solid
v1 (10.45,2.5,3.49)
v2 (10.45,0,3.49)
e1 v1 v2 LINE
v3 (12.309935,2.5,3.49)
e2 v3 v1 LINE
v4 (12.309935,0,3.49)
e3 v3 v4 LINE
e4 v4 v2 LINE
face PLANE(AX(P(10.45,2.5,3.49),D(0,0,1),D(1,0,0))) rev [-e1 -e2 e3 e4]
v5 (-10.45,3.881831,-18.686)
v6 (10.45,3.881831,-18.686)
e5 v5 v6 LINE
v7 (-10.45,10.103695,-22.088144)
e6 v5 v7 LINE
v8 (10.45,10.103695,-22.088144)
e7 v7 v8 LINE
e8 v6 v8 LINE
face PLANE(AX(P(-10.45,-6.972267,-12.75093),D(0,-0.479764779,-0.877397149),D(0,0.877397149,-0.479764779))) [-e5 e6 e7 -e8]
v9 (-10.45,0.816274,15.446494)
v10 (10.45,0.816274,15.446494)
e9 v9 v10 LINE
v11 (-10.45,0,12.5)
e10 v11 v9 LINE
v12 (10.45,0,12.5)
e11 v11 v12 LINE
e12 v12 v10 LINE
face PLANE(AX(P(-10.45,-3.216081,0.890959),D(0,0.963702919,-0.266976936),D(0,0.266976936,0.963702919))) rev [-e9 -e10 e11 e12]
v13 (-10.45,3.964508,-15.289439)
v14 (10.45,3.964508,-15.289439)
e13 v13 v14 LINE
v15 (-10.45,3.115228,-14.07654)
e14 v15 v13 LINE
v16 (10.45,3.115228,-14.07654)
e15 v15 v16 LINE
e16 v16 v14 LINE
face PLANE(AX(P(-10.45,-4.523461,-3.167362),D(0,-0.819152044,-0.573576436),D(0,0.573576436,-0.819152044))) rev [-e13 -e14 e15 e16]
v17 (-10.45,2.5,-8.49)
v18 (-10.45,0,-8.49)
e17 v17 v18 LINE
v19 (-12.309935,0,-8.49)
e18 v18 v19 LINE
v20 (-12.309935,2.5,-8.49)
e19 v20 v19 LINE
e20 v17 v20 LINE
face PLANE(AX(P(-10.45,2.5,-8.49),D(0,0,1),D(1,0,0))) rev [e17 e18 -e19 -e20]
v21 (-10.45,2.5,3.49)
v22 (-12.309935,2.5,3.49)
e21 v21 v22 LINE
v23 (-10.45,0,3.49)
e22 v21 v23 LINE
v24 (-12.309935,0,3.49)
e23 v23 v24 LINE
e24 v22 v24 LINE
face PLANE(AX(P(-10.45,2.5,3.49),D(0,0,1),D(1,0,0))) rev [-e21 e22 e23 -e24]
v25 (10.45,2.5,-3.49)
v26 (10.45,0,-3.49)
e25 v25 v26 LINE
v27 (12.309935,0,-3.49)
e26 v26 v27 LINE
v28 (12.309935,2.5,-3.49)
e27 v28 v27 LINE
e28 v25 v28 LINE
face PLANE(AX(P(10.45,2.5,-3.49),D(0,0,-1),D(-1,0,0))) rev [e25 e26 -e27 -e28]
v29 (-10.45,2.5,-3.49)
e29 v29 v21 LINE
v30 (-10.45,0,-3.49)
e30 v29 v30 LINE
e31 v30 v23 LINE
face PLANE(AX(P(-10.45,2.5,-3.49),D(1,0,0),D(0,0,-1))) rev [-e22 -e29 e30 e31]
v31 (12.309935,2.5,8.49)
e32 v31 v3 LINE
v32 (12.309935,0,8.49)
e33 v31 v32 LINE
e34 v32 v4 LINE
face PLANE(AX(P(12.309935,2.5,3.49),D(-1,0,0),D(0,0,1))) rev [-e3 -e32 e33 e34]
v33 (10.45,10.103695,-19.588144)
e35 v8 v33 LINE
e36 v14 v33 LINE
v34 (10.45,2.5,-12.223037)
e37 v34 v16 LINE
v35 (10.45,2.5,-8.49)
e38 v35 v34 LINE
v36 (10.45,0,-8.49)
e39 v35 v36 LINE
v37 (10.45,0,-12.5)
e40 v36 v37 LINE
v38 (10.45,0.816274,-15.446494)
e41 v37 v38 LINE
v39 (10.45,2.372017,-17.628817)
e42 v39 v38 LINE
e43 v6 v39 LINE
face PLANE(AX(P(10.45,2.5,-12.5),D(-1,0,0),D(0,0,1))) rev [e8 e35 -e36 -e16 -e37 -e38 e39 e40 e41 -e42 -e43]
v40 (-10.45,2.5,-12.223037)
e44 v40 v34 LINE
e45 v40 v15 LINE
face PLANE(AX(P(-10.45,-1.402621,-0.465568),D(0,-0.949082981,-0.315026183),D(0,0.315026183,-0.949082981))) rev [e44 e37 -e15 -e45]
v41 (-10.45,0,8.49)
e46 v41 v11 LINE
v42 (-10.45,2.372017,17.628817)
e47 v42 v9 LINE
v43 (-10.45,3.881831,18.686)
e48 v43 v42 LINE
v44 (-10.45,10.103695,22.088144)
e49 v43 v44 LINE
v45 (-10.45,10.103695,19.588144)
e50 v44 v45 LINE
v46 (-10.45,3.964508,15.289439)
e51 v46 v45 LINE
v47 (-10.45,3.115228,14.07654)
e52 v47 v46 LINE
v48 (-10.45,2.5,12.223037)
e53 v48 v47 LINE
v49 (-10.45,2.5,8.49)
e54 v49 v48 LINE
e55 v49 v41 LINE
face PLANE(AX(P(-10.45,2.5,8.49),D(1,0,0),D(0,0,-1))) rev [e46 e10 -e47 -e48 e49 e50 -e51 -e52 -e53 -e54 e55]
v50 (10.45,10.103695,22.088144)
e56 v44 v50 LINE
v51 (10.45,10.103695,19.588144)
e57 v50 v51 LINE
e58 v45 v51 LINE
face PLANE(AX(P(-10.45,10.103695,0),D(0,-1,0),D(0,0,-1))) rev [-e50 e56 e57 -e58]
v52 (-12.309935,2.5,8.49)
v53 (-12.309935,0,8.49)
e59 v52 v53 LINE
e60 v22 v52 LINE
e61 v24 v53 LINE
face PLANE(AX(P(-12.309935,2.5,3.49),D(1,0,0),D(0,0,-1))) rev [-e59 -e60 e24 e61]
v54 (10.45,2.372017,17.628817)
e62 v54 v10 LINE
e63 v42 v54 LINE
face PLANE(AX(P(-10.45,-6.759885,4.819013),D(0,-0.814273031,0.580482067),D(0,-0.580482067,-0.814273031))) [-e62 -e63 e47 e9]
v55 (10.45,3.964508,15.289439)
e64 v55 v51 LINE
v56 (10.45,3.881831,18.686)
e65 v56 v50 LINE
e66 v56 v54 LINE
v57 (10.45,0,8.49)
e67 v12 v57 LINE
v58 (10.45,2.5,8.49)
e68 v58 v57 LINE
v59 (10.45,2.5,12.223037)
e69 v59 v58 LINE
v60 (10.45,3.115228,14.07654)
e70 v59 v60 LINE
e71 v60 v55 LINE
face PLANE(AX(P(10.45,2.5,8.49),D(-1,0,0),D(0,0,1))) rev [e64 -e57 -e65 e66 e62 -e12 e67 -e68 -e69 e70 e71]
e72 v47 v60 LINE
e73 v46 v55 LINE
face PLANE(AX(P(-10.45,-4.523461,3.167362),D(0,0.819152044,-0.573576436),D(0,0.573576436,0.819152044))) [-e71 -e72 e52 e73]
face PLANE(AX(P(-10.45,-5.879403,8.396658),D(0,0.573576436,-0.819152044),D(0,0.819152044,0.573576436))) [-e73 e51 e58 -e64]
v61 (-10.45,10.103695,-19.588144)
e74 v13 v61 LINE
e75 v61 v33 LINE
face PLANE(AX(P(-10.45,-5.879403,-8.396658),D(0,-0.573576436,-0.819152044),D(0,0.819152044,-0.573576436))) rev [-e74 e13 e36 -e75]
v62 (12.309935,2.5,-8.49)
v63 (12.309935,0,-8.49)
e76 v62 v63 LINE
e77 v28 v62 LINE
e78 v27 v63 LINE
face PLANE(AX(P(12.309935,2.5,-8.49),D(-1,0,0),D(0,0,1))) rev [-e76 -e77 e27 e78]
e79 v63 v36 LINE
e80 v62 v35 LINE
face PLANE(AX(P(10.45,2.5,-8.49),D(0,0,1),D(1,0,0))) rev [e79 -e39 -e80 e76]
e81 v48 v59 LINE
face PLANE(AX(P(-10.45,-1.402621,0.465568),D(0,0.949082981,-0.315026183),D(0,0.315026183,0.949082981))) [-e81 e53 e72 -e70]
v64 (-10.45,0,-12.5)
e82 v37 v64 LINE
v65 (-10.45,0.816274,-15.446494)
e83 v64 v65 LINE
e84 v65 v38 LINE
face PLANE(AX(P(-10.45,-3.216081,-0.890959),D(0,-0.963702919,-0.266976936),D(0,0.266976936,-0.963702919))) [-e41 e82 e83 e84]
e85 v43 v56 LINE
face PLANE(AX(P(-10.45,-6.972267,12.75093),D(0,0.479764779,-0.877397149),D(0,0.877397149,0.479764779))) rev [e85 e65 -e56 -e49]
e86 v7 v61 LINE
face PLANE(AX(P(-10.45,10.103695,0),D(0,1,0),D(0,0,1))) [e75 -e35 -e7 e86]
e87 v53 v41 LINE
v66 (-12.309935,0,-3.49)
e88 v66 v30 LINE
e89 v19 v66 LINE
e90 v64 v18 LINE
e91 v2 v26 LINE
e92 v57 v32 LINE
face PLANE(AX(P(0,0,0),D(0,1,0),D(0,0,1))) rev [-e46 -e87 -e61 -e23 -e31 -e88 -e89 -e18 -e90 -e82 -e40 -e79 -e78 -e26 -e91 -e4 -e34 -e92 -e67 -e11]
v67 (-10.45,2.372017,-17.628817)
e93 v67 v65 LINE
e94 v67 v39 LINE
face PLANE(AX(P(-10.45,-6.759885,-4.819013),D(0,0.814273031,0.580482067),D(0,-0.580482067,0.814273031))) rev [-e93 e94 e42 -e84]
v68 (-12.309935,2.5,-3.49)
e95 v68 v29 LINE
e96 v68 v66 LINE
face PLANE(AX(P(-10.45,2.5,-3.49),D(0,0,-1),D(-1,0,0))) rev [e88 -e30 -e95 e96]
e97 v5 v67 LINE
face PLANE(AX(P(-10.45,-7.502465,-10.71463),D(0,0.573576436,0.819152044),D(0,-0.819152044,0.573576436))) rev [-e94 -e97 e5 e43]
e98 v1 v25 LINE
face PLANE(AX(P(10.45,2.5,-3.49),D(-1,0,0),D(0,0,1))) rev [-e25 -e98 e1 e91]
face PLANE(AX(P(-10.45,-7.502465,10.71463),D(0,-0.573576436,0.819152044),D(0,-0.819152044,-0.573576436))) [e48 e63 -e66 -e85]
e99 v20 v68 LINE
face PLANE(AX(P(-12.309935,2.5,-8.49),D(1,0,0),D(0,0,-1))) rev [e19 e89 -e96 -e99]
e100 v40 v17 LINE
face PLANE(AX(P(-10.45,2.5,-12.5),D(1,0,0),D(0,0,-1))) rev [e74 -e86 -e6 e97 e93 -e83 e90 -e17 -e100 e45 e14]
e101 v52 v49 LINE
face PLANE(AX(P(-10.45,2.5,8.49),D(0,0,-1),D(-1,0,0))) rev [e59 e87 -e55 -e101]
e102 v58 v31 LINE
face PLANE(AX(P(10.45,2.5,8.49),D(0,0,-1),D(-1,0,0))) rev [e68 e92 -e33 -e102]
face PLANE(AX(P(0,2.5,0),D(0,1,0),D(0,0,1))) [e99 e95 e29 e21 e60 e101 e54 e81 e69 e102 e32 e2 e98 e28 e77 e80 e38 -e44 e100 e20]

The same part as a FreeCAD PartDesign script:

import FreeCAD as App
import Part
import Sketcher

V = App.Vector
Q = App.Units.Quantity


def add_polygon(sketch, points):
    """Adds a closed chain of lines whose ends are joined by coincident constraints."""
    first, n = sketch.GeometryCount, len(points)
    for a, b in zip(points, points[1:] + points[:1]):
        sketch.addGeometry(Part.LineSegment(App.Vector(*a, 0), App.Vector(*b, 0)), False)
    for i in range(n):
        sketch.addConstraint(Sketcher.Constraint("Coincident", first + i, 2, first + (i + 1) % n, 1))

doc = App.newDocument("Part")
params = doc.addObject("Spreadsheet::Sheet", "Params")
for row, (alias, value) in enumerate([
    ("sketch1_height", "5 mm"),
    ("sketch1_width", "20.9 mm"),
    ("sketch1_height2", "4.01 mm"),
    ("sketch1_height3", "6.98 mm"),
    ("pad1_length", "2.5 mm"),
    ("sketch2_height", "25 mm"),
    ("sketch2_height2", "2.5 mm"),
    ("pad2_length", "10.45 mm"),
    ("pad2_length2", "10.45 mm"),
], start=1):
    params.set(f"A{row}", alias)
    params.set(f"B{row}", "=" + value)
    params.setAlias(f"B{row}", alias)

body = doc.addObject("PartDesign::Body", "Body")

sketch1 = doc.addObject("Sketcher::SketchObject", "Sketch")
body.addObject(sketch1)
sketch1.AttachmentSupport = (doc.XZ_Plane, [""])
sketch1.MapMode = "FlatFace"
add_polygon(sketch1, [(10.4, -12.5), (-10.4, -12.5), (-10.4, -8.5), (-12.3, -8.5), (-12.3, -3.5), (-10.4, -3.5), (-10.4, 3.5), (-12.3, 3.5), (-12.3, 8.5), (-10.4, 8.5), (-10.4, 12.5), (10.4, 12.5), (10.4, 8.5), (12.3, 8.5), (12.3, 3.5), (10.4, 3.5), (10.4, -3.5), (12.3, -3.5), (12.3, -8.5), (10.4, -8.5)])
sketch1.addConstraint([
    Sketcher.Constraint("Horizontal", 0),
    Sketcher.Constraint("Vertical", 1),
    Sketcher.Constraint("Horizontal", 2),
    Sketcher.Constraint("Vertical", 3),
    Sketcher.Constraint("Horizontal", 4),
    Sketcher.Constraint("Vertical", 5),
    Sketcher.Constraint("Horizontal", 6),
    Sketcher.Constraint("Vertical", 7),
    Sketcher.Constraint("Horizontal", 8),
    Sketcher.Constraint("Vertical", 9),
    Sketcher.Constraint("Horizontal", 10),
    Sketcher.Constraint("Vertical", 11),
    Sketcher.Constraint("Horizontal", 12),
    Sketcher.Constraint("Vertical", 13),
    Sketcher.Constraint("Horizontal", 14),
    Sketcher.Constraint("Vertical", 15),
    Sketcher.Constraint("Horizontal", 16),
    Sketcher.Constraint("Vertical", 17),
    Sketcher.Constraint("Horizontal", 18),
    Sketcher.Constraint("Vertical", 19),
    Sketcher.Constraint("Symmetric", 0, 2, 10, 2, -1, 1),
    Sketcher.Constraint("Symmetric", 2, 2, 12, 2, -1, 1),
    Sketcher.Constraint("Symmetric", 4, 2, 14, 2, -1, 1),
    Sketcher.Constraint("Symmetric", 6, 2, 16, 2, -1, 1),
    Sketcher.Constraint("Symmetric", 8, 2, 18, 2, -1, 1),
    Sketcher.Constraint("Symmetric", 8, 2, 11, 2, -2),
    Sketcher.Constraint("Symmetric", 6, 2, 13, 2, -2),
    Sketcher.Constraint("Vertical", 1, 2, 4, 2),
    Sketcher.Constraint("DistanceY", 3, 1, 3, 2, 5.0),
    Sketcher.Constraint("DistanceX", 0, 2, 0, 1, 20.9),
    Sketcher.Constraint("DistanceY", 1, 1, 1, 2, 4.01),
    Sketcher.Constraint("DistanceY", 5, 1, 5, 2, 6.98),
    Sketcher.Constraint("DistanceX", 2, 2, 2, 1, 1.859935),
])
sketch1.setExpression("Constraints[48]", "Params.sketch1_height")
sketch1.setExpression("Constraints[49]", "Params.sketch1_width")
sketch1.setExpression("Constraints[50]", "Params.sketch1_height2")
sketch1.setExpression("Constraints[51]", "Params.sketch1_height3")
pad1 = doc.addObject("PartDesign::Pad", "Pad")
body.addObject(pad1)
pad1.Profile = sketch1
pad1.setExpression("Length", "Params.pad1_length")
pad1.Reversed = True

sketch2 = doc.addObject("Sketcher::SketchObject", "Sketch001")
body.addObject(sketch2)
sketch2.AttachmentSupport = (doc.YZ_Plane, [""])
sketch2.MapMode = "FlatFace"
add_polygon(sketch2, [(0, -12.5), (0.8, -15.4), (2.4, -17.6), (3.9, -18.7), (10.1, -22.1), (10.1, -19.6), (4, -15.3), (3.1, -14.1), (2.5, -12.2), (2.5, 12.2), (3.1, 14.1), (4, 15.3), (10.1, 19.6), (10.1, 22.1), (3.9, 18.7), (2.4, 17.6), (0.8, 15.4), (0, 12.5)])
sketch2.addConstraint([
    Sketcher.Constraint("Vertical", 4),
    Sketcher.Constraint("Vertical", 8),
    Sketcher.Constraint("Vertical", 12),
    Sketcher.Constraint("Vertical", 17),
    Sketcher.Constraint("Symmetric", 16, 2, 17, 2, -1, 1),
    Sketcher.Constraint("Symmetric", 6, 2, 9, 2, -1),
    Sketcher.Constraint("Symmetric", 5, 2, 10, 2, -1),
    Sketcher.Constraint("Symmetric", 4, 2, 11, 2, -1),
    Sketcher.Constraint("Symmetric", 2, 2, 13, 2, -1),
    Sketcher.Constraint("Symmetric", 1, 2, 14, 2, -1),
    Sketcher.Constraint("Symmetric", 0, 2, 15, 2, -1),
    Sketcher.Constraint("Parallel", 2, 5),
    Sketcher.Constraint("Perpendicular", 5, 10),
    Sketcher.Constraint("Equal", 4, 12),
    Sketcher.Constraint("Equal", 7, 9),
    Sketcher.Constraint("DistanceY", 17, 2, 17, 1, 25.0),
    Sketcher.Constraint("Angle", 2, Q("-35 deg")),
    Sketcher.Constraint("DistanceY", 4, 1, 4, 2, 2.5),
    Sketcher.Constraint("DistanceX", -1, 1, 7, 2, 2.5),
    Sketcher.Constraint("DistanceY", 2, 2, -1, 1, 18.686),
    Sketcher.Constraint("DistanceY", 5, 2, 6, 2, 1.212898),
    Sketcher.Constraint("DistanceY", 5, 2, 7, 2, 3.066402),
    Sketcher.Constraint("Distance", 0, 3.057472),
    Sketcher.Constraint("Distance", 7, 1.952941),
    Sketcher.Constraint("DistanceY", 8, 1, 8, 2, 24.446074),
    Sketcher.Constraint("DistanceX", -1, 1, 2, 2, 3.881831),
    Sketcher.Constraint("DistanceX", 1, 2, 3, 2, 7.731679),
    Sketcher.Constraint("DistanceX", 0, 2, 3, 2, 9.287421),
    Sketcher.Constraint("DistanceY", 3, 2, 0, 2, 6.64165),
])
sketch2.setExpression("Constraints[33]", "Params.sketch2_height")
sketch2.setExpression("Constraints[35]", "Params.sketch2_height2")
pad2 = doc.addObject("PartDesign::Pad", "Pad001")
body.addObject(pad2)
pad2.Profile = sketch2
pad2.Type = "TwoLengths"
pad2.setExpression("Length", "Params.pad2_length")
pad2.setExpression("Length2", "Params.pad2_length2")

doc.recompute()
